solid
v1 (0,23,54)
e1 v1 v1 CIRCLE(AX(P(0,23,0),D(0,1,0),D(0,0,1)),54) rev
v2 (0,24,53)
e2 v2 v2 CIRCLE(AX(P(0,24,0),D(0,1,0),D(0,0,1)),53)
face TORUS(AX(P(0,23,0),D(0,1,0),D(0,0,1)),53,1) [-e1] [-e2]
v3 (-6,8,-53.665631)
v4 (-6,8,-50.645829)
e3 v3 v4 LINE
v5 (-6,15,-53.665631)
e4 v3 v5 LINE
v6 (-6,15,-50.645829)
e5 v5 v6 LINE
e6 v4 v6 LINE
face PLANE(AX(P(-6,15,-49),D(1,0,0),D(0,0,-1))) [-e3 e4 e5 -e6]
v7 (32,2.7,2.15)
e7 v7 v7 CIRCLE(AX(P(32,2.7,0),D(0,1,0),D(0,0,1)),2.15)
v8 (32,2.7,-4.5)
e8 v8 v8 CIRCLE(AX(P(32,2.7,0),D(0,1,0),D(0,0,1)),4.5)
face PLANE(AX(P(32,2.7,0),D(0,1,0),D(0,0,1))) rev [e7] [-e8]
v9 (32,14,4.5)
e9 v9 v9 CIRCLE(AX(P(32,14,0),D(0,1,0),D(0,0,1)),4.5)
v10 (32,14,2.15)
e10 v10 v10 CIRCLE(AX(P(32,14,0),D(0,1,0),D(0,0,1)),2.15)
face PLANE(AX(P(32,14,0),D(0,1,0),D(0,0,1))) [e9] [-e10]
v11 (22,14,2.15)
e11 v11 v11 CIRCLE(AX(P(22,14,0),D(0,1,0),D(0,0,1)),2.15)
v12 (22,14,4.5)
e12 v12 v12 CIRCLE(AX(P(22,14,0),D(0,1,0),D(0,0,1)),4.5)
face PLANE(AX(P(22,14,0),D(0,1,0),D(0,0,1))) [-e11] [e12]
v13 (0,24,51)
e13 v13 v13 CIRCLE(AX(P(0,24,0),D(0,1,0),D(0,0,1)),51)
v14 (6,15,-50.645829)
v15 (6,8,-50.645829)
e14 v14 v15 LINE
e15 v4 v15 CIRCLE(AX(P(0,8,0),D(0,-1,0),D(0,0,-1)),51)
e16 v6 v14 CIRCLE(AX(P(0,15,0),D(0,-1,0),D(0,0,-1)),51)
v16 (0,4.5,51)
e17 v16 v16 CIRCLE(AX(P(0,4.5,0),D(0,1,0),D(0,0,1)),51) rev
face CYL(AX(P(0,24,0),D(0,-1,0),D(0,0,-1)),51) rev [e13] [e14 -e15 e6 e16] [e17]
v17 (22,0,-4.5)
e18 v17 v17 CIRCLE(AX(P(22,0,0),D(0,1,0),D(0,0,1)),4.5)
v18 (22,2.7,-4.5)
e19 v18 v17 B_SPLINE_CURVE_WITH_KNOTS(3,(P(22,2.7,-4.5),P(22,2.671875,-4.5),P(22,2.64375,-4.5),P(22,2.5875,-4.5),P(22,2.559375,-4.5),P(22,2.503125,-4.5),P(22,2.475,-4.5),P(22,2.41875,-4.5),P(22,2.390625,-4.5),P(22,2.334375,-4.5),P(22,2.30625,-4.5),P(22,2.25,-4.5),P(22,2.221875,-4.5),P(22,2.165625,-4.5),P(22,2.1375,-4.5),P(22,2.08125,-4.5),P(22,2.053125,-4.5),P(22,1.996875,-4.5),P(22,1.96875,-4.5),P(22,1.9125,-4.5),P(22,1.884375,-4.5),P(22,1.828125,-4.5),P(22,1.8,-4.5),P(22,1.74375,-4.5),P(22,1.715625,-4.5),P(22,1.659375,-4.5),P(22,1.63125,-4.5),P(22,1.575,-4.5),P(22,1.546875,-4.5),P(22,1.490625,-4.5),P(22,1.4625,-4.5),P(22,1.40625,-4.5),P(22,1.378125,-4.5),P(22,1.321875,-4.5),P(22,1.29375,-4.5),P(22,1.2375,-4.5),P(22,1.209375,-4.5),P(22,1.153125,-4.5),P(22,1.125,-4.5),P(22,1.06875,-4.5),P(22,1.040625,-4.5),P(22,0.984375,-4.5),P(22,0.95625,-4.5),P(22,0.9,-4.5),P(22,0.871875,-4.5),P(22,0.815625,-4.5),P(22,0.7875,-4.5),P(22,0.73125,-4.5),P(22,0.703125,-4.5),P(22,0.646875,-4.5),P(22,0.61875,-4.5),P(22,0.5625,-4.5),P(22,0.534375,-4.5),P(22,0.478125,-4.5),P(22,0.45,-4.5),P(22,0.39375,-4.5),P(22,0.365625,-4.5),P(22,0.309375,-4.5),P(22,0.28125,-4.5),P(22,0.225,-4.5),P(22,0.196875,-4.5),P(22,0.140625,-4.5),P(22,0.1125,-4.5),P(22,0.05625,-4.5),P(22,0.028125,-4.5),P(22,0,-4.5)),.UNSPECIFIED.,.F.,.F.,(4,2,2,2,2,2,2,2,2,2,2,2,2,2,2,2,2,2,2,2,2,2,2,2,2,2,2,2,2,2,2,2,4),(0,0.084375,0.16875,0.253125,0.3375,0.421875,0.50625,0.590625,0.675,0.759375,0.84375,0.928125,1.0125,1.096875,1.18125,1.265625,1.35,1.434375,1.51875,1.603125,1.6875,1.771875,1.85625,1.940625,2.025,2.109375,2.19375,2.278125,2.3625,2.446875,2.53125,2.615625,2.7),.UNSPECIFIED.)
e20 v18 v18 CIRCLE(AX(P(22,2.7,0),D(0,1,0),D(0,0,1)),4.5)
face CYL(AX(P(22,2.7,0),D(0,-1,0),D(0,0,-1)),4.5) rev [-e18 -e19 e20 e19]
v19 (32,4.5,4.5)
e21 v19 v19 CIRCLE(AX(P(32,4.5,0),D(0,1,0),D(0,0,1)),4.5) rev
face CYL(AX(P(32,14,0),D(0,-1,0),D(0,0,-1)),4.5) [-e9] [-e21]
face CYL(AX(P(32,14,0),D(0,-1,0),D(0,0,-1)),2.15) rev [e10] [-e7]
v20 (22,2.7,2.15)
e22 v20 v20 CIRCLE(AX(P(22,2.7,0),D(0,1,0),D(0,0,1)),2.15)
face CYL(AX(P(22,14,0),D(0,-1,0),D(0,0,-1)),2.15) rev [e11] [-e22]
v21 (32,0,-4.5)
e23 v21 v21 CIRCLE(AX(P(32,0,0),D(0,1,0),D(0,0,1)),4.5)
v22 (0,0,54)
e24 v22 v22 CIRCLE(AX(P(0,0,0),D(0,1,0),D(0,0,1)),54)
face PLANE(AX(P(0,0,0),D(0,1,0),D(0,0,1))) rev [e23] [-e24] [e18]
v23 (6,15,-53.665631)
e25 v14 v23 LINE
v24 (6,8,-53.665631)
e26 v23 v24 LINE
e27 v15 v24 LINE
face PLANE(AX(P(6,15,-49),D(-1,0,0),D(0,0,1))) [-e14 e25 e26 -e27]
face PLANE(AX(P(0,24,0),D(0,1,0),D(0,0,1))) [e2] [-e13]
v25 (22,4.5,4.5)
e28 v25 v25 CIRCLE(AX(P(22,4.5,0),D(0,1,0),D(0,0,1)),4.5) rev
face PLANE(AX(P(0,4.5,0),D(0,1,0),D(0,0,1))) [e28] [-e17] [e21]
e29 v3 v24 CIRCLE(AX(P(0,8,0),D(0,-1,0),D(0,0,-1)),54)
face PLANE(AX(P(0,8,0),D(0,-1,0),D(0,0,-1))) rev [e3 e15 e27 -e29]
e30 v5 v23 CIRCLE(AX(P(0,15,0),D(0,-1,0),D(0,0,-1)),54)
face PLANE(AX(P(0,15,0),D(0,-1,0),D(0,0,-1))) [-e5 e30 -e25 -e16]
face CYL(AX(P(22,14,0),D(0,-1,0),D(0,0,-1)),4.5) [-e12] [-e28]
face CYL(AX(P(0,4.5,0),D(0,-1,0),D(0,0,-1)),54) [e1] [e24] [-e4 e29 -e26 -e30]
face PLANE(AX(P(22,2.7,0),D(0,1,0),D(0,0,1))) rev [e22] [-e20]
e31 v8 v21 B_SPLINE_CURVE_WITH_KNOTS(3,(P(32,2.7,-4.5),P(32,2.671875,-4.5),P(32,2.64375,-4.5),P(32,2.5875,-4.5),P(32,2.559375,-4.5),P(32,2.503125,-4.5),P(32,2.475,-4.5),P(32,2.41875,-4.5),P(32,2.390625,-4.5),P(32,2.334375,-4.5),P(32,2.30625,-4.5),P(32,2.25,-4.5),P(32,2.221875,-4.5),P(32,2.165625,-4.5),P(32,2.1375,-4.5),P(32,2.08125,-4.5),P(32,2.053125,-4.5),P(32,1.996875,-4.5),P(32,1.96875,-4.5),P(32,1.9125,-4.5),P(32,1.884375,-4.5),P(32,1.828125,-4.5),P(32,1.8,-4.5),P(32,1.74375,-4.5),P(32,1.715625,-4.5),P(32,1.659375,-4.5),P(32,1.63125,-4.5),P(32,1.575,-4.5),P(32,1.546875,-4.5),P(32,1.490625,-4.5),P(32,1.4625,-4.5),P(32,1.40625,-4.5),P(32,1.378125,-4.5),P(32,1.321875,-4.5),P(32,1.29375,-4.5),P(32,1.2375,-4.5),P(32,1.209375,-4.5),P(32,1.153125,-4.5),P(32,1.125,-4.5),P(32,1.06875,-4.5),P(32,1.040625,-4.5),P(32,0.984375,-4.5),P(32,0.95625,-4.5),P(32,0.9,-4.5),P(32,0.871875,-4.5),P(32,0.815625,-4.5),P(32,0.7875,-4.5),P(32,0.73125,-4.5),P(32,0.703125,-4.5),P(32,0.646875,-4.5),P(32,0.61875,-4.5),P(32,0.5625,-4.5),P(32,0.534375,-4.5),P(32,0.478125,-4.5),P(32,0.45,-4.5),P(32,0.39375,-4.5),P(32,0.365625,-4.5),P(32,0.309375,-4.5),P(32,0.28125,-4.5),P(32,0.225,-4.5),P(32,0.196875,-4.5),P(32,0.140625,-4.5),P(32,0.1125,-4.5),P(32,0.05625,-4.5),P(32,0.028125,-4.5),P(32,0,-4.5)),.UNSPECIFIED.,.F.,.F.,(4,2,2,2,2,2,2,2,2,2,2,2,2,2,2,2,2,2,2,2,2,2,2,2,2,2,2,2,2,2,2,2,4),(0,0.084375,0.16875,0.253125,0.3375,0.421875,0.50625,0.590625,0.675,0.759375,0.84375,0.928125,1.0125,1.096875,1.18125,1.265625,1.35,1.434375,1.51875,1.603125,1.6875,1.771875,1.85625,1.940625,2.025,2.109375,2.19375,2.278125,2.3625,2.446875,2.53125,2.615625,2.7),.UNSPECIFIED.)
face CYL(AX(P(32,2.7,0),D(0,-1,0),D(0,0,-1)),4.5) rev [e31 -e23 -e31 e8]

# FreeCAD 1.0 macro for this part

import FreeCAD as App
import Part
import Sketcher


def edges_at(feature, points):
    """Names of the edges that pass closest to the given points."""
    edges = feature.Shape.Edges
    near = lambda p: min(range(len(edges)), key=lambda i: edges[i].distToShape(Part.Vertex(*p))[0])
    return sorted({f"Edge{near(p) + 1}" for p in points})

doc = App.newDocument("Part")
body = doc.addObject("PartDesign::Body", "Body")

sketch1 = body.newObject("Sketcher::SketchObject", "Sketch")
sketch1.AttachmentSupport = (doc.getObject("XZ_Plane"), [""])
sketch1.MapMode = "FlatFace"
sketch1.addGeometry(Part.Circle(App.Vector(0, 0, 0), App.Vector(0, 0, 1), 54), False)
sketch1.addConstraint([
    Sketcher.Constraint("Coincident", 0, 3, -1, 1),
    Sketcher.Constraint("Diameter", 0, 108.0),
])
pad1 = body.newObject("PartDesign::Pad", "Pad")
pad1.Profile = sketch1
pad1.Length = 4.5
pad1.Reversed = True

sketch2 = body.newObject("Sketcher::SketchObject", "Sketch001")
sketch2.AttachmentSupport = (doc.getObject("XZ_Plane"), [""])
sketch2.MapMode = "FlatFace"
sketch2.addGeometry([
    Part.Circle(App.Vector(0, 0, 0), App.Vector(0, 0, 1), 54),
    Part.Circle(App.Vector(0, 0, 0), App.Vector(0, 0, 1), 51),
], False)
sketch2.addConstraint([
    Sketcher.Constraint("Coincident", 0, 3, -1, 1),
    Sketcher.Constraint("Coincident", 1, 3, -1, 1),
    Sketcher.Constraint("Diameter", 0, 108.0),
    Sketcher.Constraint("Diameter", 1, 102.0),
])
pad2 = body.newObject("PartDesign::Pad", "Pad001")
pad2.Profile = sketch2
pad2.Length = 24
pad2.Reversed = True

sketch3 = body.newObject("Sketcher::SketchObject", "Sketch002")
sketch3.AttachmentSupport = (doc.getObject("XZ_Plane"), [""])
sketch3.MapMode = "FlatFace"
sketch3.addGeometry([
    Part.Circle(App.Vector(22, 0, 0), App.Vector(0, 0, 1), 4.5),
    Part.Circle(App.Vector(32, 0, 0), App.Vector(0, 0, 1), 4.5),
], False)
sketch3.addConstraint([
    Sketcher.Constraint("Equal", 0, 1),
    Sketcher.Constraint("PointOnObject", 0, 3, -1),
    Sketcher.Constraint("PointOnObject", 1, 3, -1),
    Sketcher.Constraint("Diameter", 0, 9.0),
    Sketcher.Constraint("DistanceX", -1, 1, 0, 3, 22.0),
    Sketcher.Constraint("DistanceX", -1, 1, 1, 3, 32.0),
])
pad3 = body.newObject("PartDesign::Pad", "Pad002")
pad3.Profile = sketch3
pad3.Length = 14
pad3.Reversed = True

sketch4 = body.newObject("Sketcher::SketchObject", "Sketch003")
sketch4.AttachmentSupport = (doc.getObject("XZ_Plane"), [""])
sketch4.MapMode = "FlatFace"
sketch4.addGeometry([
    Part.Circle(App.Vector(22, 0, 0), App.Vector(0, 0, 1), 2.15),
    Part.Circle(App.Vector(32, 0, 0), App.Vector(0, 0, 1), 2.15),
], False)
sketch4.addConstraint([
    Sketcher.Constraint("Equal", 0, 1),
    Sketcher.Constraint("PointOnObject", 0, 3, -1),
    Sketcher.Constraint("PointOnObject", 1, 3, -1),
    Sketcher.Constraint("Diameter", 0, 4.3),
    Sketcher.Constraint("DistanceX", -1, 1, 0, 3, 22.0),
    Sketcher.Constraint("DistanceX", -1, 1, 1, 3, 32.0),
])
pocket1 = body.newObject("PartDesign::Pocket", "Pocket")
pocket1.Profile = sketch4
pocket1.Length = 14

sketch5 = body.newObject("Sketcher::SketchObject", "Sketch004")
sketch5.AttachmentSupport = (doc.getObject("XZ_Plane"), [""])
sketch5.MapMode = "FlatFace"
sketch5.addGeometry([
    Part.Circle(App.Vector(22, 0, 0), App.Vector(0, 0, 1), 4.5),
    Part.Circle(App.Vector(32, 0, 0), App.Vector(0, 0, 1), 4.5),
], False)
sketch5.addConstraint([
    Sketcher.Constraint("Equal", 0, 1),
    Sketcher.Constraint("PointOnObject", 0, 3, -1),
    Sketcher.Constraint("PointOnObject", 1, 3, -1),
    Sketcher.Constraint("Diameter", 0, 9.0),
    Sketcher.Constraint("DistanceX", -1, 1, 0, 3, 22.0),
    Sketcher.Constraint("DistanceX", -1, 1, 1, 3, 32.0),
])
pocket2 = body.newObject("PartDesign::Pocket", "Pocket001")
pocket2.Profile = sketch5
pocket2.Length = 2.7

sketch6 = body.newObject("Sketcher::SketchObject", "Sketch005")
sketch6.AttachmentSupport = (doc.getObject("XZ_Plane"), [""])
sketch6.MapMode = "FlatFace"
sketch6.AttachmentOffset = App.Placement(App.Vector(0, 0, -8), App.Rotation())
sketch6.addGeometry([
    Part.LineSegment(App.Vector(-6, -60, 0), App.Vector(-6, -49, 0)),
    Part.LineSegment(App.Vector(-6, -49, 0), App.Vector(6, -49, 0)),
    Part.LineSegment(App.Vector(6, -49, 0), App.Vector(6, -60, 0)),
    Part.LineSegment(App.Vector(6, -60, 0), App.Vector(-6, -60, 0)),
], False)
sketch6.addConstraint([
    Sketcher.Constraint("Coincident", 0, 2, 1, 1),
    Sketcher.Constraint("Coincident", 1, 2, 2, 1),
    Sketcher.Constraint("Coincident", 2, 2, 3, 1),
    Sketcher.Constraint("Coincident", 3, 2, 0, 1),
    Sketcher.Constraint("Vertical", 0),
    Sketcher.Constraint("Horizontal", 1),
    Sketcher.Constraint("Vertical", 2),
    Sketcher.Constraint("Horizontal", 3),
    Sketcher.Constraint("DistanceX", 1, 1, 1, 2, 12.0),
    Sketcher.Constraint("DistanceY", 0, 1, 0, 2, 11.0),
    Sketcher.Constraint("DistanceX", 0, 2, -1, 1, 6.0),
    Sketcher.Constraint("DistanceY", 0, 2, -1, 1, 49.0),
])
pocket3 = body.newObject("PartDesign::Pocket", "Pocket002")
pocket3.Profile = sketch6
pocket3.Length = 7
doc.recompute()

fillet = body.newObject("PartDesign::Fillet", "Fillet")
fillet.Base = (pocket3, edges_at(pocket3, [(0, 24, -54)]))
fillet.Radius = 1

doc.recompute()
